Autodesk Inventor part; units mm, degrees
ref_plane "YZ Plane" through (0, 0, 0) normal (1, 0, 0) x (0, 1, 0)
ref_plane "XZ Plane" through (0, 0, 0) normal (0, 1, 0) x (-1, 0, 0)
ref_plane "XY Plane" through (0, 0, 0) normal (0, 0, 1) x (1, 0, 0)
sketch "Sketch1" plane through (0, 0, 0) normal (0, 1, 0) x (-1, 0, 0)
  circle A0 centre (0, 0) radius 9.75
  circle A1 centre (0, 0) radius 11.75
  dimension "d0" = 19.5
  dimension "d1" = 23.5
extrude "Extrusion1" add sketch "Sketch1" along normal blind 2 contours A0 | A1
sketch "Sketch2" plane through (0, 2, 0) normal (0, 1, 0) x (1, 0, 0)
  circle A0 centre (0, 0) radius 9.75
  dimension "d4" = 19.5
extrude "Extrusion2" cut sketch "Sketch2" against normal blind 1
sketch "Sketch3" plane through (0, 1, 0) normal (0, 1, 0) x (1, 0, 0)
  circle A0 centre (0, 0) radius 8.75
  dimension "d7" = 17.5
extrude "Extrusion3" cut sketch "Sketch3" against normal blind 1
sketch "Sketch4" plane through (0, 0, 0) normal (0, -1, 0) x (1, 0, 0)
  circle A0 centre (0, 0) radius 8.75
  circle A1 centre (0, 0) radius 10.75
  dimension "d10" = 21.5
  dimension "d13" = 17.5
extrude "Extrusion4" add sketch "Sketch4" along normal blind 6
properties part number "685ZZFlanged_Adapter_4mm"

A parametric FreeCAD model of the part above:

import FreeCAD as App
import Part
import Sketcher
from FreeCAD import Vector
Q = App.Units.Quantity

doc = App.newDocument("Part")
params = doc.addObject("Spreadsheet::Sheet", "Params")
for row, (alias, value) in enumerate([
    ("sketch1_diameter", "23.5 mm"),
    ("pad1_length", "2 mm"),
    ("sketch2_diameter", "19.5 mm"),
    ("pocket1_length", "1 mm"),
    ("sketch3_diameter", "17.5 mm"),
    ("pocket2_length", "1 mm"),
    ("sketch4_diameter", "21.5 mm"),
    ("sketch4_diameter2", "17.5 mm"),
    ("pad2_length", "6 mm"),
], start=1):
    params.set(f"A{row}", alias)
    params.set(f"B{row}", "=" + value)
    params.setAlias(f"B{row}", alias)

body = doc.addObject("PartDesign::Body", "Body")

sketch1 = doc.addObject("Sketcher::SketchObject", "Sketch")
body.addObject(sketch1)
sketch1.AttachmentSupport = (doc.XZ_Plane, [""])
sketch1.MapMode = "FlatFace"
sketch1.addGeometry(Part.Circle(Vector(0, 0, 0), Vector(0, 0, 1), 12), False)
sketch1.addConstraint([
    Sketcher.Constraint("Coincident", 0, 3, -1, 1),
    Sketcher.Constraint("Diameter", 0, Q("23.5 mm")),
])
sketch1.setExpression("Constraints[1]", "Params.sketch1_diameter")
pad1 = doc.addObject("PartDesign::Pad", "Pad")
body.addObject(pad1)
pad1.Profile = sketch1
pad1.setExpression("Length", "Params.pad1_length")
pad1.Reversed = True

sketch2 = doc.addObject("Sketcher::SketchObject", "Sketch001")
body.addObject(sketch2)
sketch2.AttachmentSupport = (doc.XZ_Plane, [""])
sketch2.MapMode = "FlatFace"
sketch2.AttachmentOffset = App.Placement(Vector(0, 0, -2), App.Rotation())
sketch2.addGeometry(Part.Circle(Vector(0, 0, 0), Vector(0, 0, 1), 10), False)
sketch2.addConstraint([
    Sketcher.Constraint("Coincident", 0, 3, -1, 1),
    Sketcher.Constraint("Diameter", 0, Q("19.5 mm")),
])
sketch2.setExpression("Constraints[1]", "Params.sketch2_diameter")
pocket1 = doc.addObject("PartDesign::Pocket", "Pocket")
body.addObject(pocket1)
pocket1.Profile = sketch2
pocket1.setExpression("Length", "Params.pocket1_length")
pocket1.Reversed = True

sketch3 = doc.addObject("Sketcher::SketchObject", "Sketch002")
body.addObject(sketch3)
sketch3.AttachmentSupport = (doc.XZ_Plane, [""])
sketch3.MapMode = "FlatFace"
sketch3.AttachmentOffset = App.Placement(Vector(0, 0, -1), App.Rotation())
sketch3.addGeometry(Part.Circle(Vector(0, 0, 0), Vector(0, 0, 1), 9), False)
sketch3.addConstraint([
    Sketcher.Constraint("Coincident", 0, 3, -1, 1),
    Sketcher.Constraint("Diameter", 0, Q("17.5 mm")),
])
sketch3.setExpression("Constraints[1]", "Params.sketch3_diameter")
pocket2 = doc.addObject("PartDesign::Pocket", "Pocket001")
body.addObject(pocket2)
pocket2.Profile = sketch3
pocket2.setExpression("Length", "Params.pocket2_length")
pocket2.Reversed = True

sketch4 = doc.addObject("Sketcher::SketchObject", "Sketch003")
body.addObject(sketch4)
sketch4.AttachmentSupport = (doc.XZ_Plane, [""])
sketch4.MapMode = "FlatFace"
sketch4.addGeometry([
    Part.Circle(Vector(0, 0, 0), Vector(0, 0, 1), 11),
    Part.Circle(Vector(0, 0, 0), Vector(0, 0, 1), 9),
], False)
sketch4.addConstraint([
    Sketcher.Constraint("Coincident", 0, 3, -1, 1),
    Sketcher.Constraint("Coincident", 1, 3, -1, 1),
    Sketcher.Constraint("Diameter", 0, Q("21.5 mm")),
    Sketcher.Constraint("Diameter", 1, Q("17.5 mm")),
])
sketch4.setExpression("Constraints[2]", "Params.sketch4_diameter")
sketch4.setExpression("Constraints[3]", "Params.sketch4_diameter2")
pad2 = doc.addObject("PartDesign::Pad", "Pad001")
body.addObject(pad2)
pad2.Profile = sketch4
pad2.setExpression("Length", "Params.pad2_length")

doc.recompute()
